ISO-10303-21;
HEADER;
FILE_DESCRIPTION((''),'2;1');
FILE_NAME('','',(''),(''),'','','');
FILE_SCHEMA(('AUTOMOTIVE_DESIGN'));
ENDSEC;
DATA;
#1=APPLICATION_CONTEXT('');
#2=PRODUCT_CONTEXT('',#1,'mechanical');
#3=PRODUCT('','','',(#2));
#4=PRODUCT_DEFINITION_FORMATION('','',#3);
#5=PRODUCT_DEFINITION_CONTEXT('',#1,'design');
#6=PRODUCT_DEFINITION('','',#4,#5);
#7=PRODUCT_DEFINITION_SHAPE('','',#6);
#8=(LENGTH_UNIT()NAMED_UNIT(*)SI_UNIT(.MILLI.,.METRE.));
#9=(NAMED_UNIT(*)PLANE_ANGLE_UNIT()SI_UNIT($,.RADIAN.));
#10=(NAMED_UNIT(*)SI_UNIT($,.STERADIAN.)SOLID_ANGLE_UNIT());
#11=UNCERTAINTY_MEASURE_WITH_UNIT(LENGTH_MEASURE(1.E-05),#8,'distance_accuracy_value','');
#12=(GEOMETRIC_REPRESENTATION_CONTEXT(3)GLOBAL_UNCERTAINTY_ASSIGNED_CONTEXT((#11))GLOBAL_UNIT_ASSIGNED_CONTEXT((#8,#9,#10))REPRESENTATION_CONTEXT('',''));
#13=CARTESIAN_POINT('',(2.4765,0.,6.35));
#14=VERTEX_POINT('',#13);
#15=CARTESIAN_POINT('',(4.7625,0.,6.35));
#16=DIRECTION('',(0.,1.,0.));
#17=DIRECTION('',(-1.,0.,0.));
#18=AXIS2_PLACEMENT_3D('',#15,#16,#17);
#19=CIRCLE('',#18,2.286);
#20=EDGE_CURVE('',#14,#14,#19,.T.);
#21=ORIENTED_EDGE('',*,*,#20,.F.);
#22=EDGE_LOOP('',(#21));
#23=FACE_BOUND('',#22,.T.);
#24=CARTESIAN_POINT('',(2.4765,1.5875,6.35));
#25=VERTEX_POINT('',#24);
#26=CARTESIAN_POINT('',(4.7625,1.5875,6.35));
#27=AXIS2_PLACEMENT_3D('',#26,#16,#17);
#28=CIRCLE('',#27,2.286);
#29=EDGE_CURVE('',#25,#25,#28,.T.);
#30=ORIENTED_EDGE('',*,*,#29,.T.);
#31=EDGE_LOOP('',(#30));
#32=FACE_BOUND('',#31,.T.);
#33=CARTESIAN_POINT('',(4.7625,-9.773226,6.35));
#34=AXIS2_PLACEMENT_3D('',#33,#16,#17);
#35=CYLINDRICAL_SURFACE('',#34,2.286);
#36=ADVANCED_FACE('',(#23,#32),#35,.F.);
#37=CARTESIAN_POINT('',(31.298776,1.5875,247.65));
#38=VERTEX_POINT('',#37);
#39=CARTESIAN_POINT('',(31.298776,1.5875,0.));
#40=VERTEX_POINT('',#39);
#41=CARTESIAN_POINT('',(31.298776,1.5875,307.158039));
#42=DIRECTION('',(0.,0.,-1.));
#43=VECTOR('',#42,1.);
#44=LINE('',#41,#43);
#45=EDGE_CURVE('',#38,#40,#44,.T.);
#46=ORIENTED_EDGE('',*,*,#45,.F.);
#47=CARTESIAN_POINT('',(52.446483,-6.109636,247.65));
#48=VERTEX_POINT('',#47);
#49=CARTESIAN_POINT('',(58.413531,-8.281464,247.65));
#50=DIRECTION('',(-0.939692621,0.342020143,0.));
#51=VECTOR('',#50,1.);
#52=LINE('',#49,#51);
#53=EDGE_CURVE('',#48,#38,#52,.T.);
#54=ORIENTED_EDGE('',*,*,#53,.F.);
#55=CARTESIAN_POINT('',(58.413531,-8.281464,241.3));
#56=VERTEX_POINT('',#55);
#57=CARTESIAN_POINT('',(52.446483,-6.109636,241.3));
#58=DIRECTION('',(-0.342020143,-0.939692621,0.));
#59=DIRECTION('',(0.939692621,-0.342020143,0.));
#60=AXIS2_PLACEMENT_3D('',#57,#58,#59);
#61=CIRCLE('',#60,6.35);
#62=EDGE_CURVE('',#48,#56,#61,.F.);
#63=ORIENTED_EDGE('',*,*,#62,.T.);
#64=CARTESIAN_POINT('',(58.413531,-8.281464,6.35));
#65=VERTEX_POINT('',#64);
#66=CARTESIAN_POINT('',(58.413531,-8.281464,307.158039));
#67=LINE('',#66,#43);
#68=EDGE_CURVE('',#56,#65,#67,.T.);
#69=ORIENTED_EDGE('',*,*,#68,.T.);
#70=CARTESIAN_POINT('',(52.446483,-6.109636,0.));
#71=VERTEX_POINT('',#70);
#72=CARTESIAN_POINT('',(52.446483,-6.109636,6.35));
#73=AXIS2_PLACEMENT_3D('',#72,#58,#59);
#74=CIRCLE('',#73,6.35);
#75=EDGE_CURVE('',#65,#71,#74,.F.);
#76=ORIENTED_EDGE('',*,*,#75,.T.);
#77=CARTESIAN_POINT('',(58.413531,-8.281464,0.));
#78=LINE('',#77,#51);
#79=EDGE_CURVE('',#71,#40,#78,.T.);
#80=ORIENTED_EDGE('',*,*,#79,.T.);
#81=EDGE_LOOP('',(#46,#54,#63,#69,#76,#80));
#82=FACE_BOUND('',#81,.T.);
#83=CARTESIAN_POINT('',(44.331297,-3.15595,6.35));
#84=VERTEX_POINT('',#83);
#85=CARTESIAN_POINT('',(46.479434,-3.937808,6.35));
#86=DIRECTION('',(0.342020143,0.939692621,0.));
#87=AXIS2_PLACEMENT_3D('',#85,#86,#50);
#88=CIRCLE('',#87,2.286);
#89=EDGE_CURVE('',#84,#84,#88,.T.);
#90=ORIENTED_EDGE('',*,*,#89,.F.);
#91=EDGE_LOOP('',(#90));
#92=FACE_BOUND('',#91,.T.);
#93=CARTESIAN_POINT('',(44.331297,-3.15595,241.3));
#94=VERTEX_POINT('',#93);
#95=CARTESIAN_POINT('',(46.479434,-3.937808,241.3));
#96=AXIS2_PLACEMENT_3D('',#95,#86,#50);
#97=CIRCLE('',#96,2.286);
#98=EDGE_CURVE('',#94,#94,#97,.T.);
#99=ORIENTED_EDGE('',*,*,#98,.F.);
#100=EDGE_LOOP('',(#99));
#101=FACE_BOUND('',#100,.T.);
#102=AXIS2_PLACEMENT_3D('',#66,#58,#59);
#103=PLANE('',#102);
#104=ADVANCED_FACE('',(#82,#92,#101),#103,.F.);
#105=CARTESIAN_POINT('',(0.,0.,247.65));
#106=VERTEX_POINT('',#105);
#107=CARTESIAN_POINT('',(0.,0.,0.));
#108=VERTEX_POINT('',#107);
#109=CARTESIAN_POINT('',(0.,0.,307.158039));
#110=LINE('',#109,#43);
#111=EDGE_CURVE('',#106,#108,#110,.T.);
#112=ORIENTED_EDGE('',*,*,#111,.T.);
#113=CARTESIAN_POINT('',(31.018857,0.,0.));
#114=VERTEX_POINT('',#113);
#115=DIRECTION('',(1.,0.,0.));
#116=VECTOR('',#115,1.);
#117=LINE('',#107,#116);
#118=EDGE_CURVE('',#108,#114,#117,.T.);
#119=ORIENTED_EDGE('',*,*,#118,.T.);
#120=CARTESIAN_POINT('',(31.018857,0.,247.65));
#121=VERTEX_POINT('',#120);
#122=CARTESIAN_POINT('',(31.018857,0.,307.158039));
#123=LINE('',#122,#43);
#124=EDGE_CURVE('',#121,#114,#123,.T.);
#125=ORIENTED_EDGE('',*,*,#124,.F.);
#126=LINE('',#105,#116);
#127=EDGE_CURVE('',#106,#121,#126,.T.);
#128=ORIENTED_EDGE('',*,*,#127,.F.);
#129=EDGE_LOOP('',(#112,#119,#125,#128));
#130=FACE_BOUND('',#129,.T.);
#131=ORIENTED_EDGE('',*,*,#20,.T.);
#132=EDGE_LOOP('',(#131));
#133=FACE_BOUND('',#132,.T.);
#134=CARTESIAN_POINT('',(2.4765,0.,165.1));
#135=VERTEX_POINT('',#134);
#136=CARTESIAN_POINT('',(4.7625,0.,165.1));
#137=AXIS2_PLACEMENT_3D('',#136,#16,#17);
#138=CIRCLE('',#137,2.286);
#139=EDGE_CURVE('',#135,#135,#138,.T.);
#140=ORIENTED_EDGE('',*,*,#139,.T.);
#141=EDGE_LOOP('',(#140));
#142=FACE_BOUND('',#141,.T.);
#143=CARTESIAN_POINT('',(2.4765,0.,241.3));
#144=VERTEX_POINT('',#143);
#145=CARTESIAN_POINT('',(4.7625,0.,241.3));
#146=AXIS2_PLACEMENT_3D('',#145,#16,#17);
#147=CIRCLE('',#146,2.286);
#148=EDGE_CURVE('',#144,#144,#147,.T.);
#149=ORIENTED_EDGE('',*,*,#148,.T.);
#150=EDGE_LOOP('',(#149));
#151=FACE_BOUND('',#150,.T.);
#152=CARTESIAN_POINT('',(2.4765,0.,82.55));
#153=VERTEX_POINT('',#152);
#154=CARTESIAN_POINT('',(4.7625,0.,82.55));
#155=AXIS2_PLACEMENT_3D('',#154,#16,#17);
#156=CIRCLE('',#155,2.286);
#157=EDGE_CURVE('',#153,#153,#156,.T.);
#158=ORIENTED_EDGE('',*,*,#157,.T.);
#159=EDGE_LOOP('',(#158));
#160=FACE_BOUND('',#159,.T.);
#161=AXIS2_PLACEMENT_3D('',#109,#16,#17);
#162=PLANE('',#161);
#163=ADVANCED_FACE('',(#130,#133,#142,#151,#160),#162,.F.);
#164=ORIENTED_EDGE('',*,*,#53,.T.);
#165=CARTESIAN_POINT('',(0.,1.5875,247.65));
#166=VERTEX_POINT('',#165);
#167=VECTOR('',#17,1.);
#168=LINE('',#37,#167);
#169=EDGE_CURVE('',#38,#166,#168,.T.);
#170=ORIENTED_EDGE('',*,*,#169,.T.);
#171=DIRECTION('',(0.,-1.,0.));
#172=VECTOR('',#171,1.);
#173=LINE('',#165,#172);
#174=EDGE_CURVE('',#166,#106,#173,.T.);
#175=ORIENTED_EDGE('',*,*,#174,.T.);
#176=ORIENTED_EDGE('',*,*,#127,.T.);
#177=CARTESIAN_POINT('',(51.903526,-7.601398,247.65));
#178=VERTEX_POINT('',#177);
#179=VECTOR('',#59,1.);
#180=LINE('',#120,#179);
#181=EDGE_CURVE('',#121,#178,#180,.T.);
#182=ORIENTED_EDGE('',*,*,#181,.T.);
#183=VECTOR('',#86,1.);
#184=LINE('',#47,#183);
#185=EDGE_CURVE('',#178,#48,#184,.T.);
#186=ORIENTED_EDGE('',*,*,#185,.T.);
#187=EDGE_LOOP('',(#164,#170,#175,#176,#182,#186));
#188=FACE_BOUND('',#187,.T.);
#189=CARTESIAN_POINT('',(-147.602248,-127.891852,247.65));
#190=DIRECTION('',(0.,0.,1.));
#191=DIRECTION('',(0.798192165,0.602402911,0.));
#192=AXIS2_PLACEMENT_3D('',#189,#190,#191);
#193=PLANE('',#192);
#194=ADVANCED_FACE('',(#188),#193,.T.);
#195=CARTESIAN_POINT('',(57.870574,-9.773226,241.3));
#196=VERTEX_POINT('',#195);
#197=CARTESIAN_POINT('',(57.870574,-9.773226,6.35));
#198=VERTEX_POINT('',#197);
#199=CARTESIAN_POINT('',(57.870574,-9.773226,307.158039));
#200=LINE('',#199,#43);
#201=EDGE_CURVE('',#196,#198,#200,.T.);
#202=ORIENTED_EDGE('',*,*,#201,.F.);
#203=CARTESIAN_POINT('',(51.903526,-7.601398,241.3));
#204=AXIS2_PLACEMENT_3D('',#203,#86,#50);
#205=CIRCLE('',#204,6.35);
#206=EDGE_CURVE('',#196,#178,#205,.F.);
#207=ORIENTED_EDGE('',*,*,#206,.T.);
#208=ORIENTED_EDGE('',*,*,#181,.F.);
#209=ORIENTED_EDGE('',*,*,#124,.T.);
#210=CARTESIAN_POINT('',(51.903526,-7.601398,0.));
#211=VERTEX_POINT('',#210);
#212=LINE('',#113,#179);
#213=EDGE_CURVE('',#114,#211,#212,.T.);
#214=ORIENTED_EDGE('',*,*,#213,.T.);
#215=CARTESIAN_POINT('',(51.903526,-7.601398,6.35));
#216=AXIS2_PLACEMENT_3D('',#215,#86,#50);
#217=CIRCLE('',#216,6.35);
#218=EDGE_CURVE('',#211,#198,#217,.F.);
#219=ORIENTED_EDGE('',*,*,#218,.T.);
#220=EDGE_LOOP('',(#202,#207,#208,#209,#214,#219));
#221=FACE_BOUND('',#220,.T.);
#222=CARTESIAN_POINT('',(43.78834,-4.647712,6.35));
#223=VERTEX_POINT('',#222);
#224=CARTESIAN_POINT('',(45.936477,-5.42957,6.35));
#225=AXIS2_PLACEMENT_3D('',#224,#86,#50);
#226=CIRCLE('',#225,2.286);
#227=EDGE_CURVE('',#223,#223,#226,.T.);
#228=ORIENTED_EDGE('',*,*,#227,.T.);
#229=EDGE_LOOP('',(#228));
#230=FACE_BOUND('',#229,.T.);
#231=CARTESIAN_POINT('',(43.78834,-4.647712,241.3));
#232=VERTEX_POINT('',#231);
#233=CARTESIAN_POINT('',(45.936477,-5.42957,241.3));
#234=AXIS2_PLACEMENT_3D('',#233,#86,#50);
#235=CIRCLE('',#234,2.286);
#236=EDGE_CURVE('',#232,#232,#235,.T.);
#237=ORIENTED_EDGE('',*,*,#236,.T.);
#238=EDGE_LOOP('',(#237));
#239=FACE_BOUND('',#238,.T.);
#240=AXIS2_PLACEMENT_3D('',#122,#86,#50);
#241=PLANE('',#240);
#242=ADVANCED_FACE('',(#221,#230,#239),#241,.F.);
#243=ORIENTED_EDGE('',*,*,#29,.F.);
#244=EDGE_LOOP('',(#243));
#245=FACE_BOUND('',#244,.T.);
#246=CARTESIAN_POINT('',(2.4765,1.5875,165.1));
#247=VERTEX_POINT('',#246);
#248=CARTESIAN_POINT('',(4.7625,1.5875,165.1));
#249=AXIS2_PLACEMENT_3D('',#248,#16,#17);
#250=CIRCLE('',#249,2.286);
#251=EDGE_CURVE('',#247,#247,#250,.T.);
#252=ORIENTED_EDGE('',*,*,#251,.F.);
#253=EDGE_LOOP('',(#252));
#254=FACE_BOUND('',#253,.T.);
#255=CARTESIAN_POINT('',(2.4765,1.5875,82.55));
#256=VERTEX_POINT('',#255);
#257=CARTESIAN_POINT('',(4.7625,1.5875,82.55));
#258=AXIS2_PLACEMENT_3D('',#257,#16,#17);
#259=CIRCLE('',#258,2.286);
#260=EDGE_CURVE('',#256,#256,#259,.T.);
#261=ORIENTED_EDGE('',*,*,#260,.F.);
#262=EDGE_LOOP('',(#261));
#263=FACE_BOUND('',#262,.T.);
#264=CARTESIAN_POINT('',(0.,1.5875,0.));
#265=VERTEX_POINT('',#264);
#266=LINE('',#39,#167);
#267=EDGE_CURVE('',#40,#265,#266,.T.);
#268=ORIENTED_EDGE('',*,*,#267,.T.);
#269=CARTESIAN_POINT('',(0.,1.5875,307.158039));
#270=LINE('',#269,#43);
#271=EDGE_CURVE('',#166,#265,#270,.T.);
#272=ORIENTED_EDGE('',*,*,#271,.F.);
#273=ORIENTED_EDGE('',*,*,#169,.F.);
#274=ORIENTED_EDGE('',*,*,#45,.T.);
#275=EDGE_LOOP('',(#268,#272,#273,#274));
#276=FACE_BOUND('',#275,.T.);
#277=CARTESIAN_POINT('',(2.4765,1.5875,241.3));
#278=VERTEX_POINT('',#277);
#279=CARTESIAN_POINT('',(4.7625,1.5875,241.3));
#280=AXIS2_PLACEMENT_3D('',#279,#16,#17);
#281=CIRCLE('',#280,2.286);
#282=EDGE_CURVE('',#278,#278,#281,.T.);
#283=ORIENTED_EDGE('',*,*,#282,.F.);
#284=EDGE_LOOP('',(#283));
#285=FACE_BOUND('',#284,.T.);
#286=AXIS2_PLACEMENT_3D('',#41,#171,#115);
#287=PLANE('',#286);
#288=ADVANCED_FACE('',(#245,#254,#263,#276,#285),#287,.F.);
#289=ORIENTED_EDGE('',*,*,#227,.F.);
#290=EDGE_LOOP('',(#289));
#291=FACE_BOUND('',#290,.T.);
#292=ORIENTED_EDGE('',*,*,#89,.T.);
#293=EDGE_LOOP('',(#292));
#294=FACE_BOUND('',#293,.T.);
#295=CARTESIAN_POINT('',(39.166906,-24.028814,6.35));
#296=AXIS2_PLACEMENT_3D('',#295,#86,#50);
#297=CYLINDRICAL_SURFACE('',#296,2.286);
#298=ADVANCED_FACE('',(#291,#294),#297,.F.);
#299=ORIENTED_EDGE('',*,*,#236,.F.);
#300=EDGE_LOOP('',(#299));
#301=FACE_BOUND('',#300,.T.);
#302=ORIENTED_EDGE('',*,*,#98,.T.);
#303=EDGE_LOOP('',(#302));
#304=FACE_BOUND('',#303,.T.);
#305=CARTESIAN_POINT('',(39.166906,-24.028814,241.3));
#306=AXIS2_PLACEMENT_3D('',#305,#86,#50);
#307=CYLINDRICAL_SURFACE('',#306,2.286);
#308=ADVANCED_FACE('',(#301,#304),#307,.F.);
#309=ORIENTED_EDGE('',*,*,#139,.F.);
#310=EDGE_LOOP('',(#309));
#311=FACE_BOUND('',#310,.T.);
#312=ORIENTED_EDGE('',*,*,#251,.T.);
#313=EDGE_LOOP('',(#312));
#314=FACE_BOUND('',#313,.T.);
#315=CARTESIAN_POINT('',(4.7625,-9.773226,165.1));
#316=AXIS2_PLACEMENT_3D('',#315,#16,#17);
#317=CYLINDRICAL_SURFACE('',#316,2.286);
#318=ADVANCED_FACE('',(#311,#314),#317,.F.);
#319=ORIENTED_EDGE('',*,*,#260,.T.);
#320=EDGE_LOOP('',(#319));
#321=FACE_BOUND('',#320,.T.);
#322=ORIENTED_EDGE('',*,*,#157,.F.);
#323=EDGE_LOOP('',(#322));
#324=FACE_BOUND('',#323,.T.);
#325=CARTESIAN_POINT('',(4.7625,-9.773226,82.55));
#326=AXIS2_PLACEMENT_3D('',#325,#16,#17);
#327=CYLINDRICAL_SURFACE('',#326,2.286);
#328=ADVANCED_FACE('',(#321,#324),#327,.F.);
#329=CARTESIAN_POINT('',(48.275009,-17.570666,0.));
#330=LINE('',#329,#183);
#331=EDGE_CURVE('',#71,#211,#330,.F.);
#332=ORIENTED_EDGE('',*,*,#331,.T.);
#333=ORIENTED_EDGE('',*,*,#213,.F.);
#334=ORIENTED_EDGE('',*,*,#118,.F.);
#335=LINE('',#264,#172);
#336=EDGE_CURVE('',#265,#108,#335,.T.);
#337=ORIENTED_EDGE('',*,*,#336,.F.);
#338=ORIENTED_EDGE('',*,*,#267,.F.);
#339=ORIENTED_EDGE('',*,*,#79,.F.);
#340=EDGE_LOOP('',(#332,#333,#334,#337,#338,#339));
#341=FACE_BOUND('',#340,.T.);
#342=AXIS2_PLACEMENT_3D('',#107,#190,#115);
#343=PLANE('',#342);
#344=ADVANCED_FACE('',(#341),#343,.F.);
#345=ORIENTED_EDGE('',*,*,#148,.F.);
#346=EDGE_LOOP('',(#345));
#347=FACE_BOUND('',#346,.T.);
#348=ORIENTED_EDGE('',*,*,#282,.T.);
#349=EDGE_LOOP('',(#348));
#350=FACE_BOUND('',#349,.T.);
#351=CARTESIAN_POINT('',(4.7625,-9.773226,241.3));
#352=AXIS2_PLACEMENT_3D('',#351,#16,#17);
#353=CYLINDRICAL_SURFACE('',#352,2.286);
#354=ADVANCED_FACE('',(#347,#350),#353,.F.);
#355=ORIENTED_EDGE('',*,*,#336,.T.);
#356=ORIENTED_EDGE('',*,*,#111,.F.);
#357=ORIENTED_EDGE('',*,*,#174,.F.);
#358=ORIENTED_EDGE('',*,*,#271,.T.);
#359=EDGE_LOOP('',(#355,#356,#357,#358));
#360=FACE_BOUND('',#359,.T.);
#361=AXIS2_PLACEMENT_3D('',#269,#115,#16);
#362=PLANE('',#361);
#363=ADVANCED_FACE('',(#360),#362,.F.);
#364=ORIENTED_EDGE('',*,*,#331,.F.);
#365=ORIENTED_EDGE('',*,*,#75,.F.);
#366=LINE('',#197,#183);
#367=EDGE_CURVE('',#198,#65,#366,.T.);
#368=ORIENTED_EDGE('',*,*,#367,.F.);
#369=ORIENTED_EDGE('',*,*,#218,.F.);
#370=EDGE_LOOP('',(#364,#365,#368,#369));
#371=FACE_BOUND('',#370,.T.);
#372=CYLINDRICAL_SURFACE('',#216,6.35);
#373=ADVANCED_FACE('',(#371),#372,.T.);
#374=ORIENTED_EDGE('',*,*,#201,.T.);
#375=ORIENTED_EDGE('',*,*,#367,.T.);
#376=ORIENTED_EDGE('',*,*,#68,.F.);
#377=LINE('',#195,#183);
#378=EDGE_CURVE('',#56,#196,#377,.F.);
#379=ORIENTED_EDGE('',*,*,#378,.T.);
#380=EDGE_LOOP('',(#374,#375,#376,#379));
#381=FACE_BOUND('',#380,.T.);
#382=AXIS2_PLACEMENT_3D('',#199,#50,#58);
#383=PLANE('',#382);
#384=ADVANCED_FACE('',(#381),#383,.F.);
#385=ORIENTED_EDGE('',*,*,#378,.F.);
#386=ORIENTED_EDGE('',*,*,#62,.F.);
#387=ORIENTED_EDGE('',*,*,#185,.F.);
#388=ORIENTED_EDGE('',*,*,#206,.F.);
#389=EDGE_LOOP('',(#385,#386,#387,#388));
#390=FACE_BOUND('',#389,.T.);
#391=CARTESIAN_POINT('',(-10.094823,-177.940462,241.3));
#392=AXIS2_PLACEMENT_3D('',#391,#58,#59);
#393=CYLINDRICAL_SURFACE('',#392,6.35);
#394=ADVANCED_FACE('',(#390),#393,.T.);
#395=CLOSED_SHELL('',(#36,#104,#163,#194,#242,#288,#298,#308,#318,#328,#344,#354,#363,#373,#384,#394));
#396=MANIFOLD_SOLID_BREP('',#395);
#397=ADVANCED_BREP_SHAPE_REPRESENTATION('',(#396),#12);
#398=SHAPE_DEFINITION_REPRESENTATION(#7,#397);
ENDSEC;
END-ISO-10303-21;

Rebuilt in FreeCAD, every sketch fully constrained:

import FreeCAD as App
import Part
import Sketcher
Q = App.Units.Quantity


def edges_at(feature, points):
    """Names of the edges that pass closest to the given points."""
    edges = feature.Shape.Edges
    near = lambda p: min(range(len(edges)), key=lambda i: edges[i].distToShape(Part.Vertex(*p))[0])
    return sorted({f"Edge{near(p) + 1}" for p in points})


def add_polygon(sketch, points):
    """Adds a closed chain of lines whose ends are joined by coincident constraints."""
    first, n = sketch.GeometryCount, len(points)
    for a, b in zip(points, points[1:] + points[:1]):
        sketch.addGeometry(Part.LineSegment(App.Vector(*a, 0), App.Vector(*b, 0)), False)
    for i in range(n):
        sketch.addConstraint(Sketcher.Constraint("Coincident", first + i, 2, first + (i + 1) % n, 1))

doc = App.newDocument("Part")
body = doc.addObject("PartDesign::Body", "Body")

# Sketch on XY plane
sketch1 = body.newObject("Sketcher::SketchObject", "Sketch")
sketch1.AttachmentSupport = (doc.getObject("XY_Plane"), [""])
sketch1.MapMode = "FlatFace"
add_polygon(sketch1, [(0, 0), (31, 0), (57.9, -9.8), (58.4, -8.3), (31.3, 1.6), (0, 1.6)])  # lines 0-5
sketch1.addConstraint(Sketcher.Constraint("Horizontal", 0))
sketch1.addConstraint(Sketcher.Constraint("Horizontal", 4))
sketch1.addConstraint(Sketcher.Constraint("Vertical", 5))
sketch1.addConstraint(Sketcher.Constraint("Coincident", 5, 2, -1, 1))
sketch1.addConstraint(Sketcher.Constraint("Perpendicular", 1, 2))
sketch1.addConstraint(Sketcher.Constraint("Perpendicular", 2, 3))
sketch1.addConstraint(Sketcher.Constraint("Angle", 1, Q("-20 deg")))
sketch1.addConstraint(Sketcher.Constraint("DistanceY", 5, 2, 5, 1, Q("0.0625 in")))
sketch1.addConstraint(Sketcher.Constraint("Distance", 1, Q("1.125 in")))
sketch1.addConstraint(Sketcher.Constraint("Distance", 2, Q("0.0625 in")))
sketch1.addConstraint(Sketcher.Constraint("DistanceX", 0, 1, 0, 2, Q("31.018857 mm")))
pad1 = body.newObject("PartDesign::Pad", "Pad")
pad1.Profile = sketch1
pad1.Length = Q("9.75 in")

# Sketch on XZ plane
sketch2 = body.newObject("Sketcher::SketchObject", "Sketch001")
sketch2.AttachmentSupport = (doc.getObject("XZ_Plane"), [""])
sketch2.MapMode = "FlatFace"
sketch2.AttachmentOffset = App.Placement(App.Vector(0, 0, -0.0625 * 25.4), App.Rotation())
sketch2.addGeometry(Part.Circle(App.Vector(4.8, 6.3, 0), App.Vector(0, 0, 1), 2.3), False)
sketch2.addGeometry(Part.Circle(App.Vector(4.8, 241.3, 0), App.Vector(0, 0, 1), 2.3), False)
sketch2.addGeometry(Part.Circle(App.Vector(4.8, 82.5, 0), App.Vector(0, 0, 1), 2.3), False)
sketch2.addGeometry(Part.Circle(App.Vector(4.8, 165.1, 0), App.Vector(0, 0, 1), 2.3), False)
sketch2.addConstraint(Sketcher.Constraint("Equal", 0, 1))
sketch2.addConstraint(Sketcher.Constraint("Equal", 1, 2))
sketch2.addConstraint(Sketcher.Constraint("Equal", 2, 3))
sketch2.addConstraint(Sketcher.Constraint("Vertical", 0, 3, 1, 3))
sketch2.addConstraint(Sketcher.Constraint("Vertical", 1, 3, 2, 3))
sketch2.addConstraint(Sketcher.Constraint("Vertical", 2, 3, 3, 3))
sketch2.addConstraint(Sketcher.Constraint("Diameter", 0, Q("0.18 in")))
sketch2.addConstraint(Sketcher.Constraint("DistanceY", 0, 3, 2, 3, Q("3 in")))
sketch2.addConstraint(Sketcher.Constraint("DistanceY", 3, 3, 1, 3, Q("3 in")))
sketch2.addConstraint(Sketcher.Constraint("DistanceY", -1, 1, 1, 3, Q("9.5 in")))
sketch2.addConstraint(Sketcher.Constraint("DistanceY", -1, 1, 0, 3, Q("0.25 in")))
sketch2.addConstraint(Sketcher.Constraint("DistanceX", -1, 1, 0, 3, Q("0.1875 in")))
pocket1 = body.newObject("PartDesign::Pocket", "Pocket")
pocket1.Profile = sketch2
pocket1.Type = "ThroughAll"
pocket1.Reversed = True

# Sketch on an angled plane
sketch3 = body.newObject("Sketcher::SketchObject", "Sketch002")
sketch3.Placement = App.Placement(App.Vector(4.171474, 11.461031, 0), App.Rotation(App.Vector(0.939692621, -0.342020143, 0), App.Vector(0, 0, -1), App.Vector(0.342020143, 0.939692621, 0), "ZXY"))
sketch3.addGeometry(Part.Circle(App.Vector(45, -6.4, 0), App.Vector(0, 0, 1), 2.3), False)
sketch3.addGeometry(Part.Circle(App.Vector(45, -241.3, 0), App.Vector(0, 0, 1), 2.3), False)
sketch3.addConstraint(Sketcher.Constraint("Equal", 0, 1))
sketch3.addConstraint(Sketcher.Constraint("Vertical", 0, 3, 1, 3))
sketch3.addConstraint(Sketcher.Constraint("Diameter", 0, Q("0.18 in")))
sketch3.addConstraint(Sketcher.Constraint("DistanceY", 1, 3, -1, 1, Q("9.5 in")))
sketch3.addConstraint(Sketcher.Constraint("DistanceY", 0, 3, -1, 1, Q("0.25 in")))
sketch3.addConstraint(Sketcher.Constraint("DistanceX", -1, 1, 0, 3, Q("45.023191 mm")))
pocket2 = body.newObject("PartDesign::Pocket", "Pocket001")
pocket2.Profile = sketch3
pocket2.Type = "ThroughAll"
doc.recompute()

fillet = body.newObject("PartDesign::Fillet", "Fillet")
fillet.Base = (pocket2, edges_at(pocket2, [(58.142, -9.027, 0), (58.142, -9.027, 247.65)]))
fillet.Radius = Q("0.25 in")

doc.recompute()
